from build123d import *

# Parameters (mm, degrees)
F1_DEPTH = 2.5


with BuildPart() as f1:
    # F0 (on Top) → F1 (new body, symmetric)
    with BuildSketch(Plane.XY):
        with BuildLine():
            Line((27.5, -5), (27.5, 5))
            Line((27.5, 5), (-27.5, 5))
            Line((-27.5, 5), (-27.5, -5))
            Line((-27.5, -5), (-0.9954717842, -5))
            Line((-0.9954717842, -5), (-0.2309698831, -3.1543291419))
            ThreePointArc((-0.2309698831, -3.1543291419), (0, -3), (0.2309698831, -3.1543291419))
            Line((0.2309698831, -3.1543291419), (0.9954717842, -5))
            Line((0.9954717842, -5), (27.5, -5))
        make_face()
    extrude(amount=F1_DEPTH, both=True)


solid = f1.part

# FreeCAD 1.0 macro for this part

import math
import FreeCAD as App
import Part
import Sketcher

V = App.Vector
Q = App.Units.Quantity

doc = App.newDocument("Part")
params = doc.addObject("Spreadsheet::Sheet", "Params")
for row, (alias, value) in enumerate([
    ("sketch1_width", "55 mm"),
    ("sketch1_height", "10 mm"),
    ("sketch1_radius", "0.25 mm"),
    ("pad1_length", "5 mm"),
], start=1):
    params.set(f"A{row}", alias)
    params.set(f"B{row}", "=" + value)
    params.setAlias(f"B{row}", alias)

body = doc.addObject("PartDesign::Body", "Body")

sketch1 = body.newObject("Sketcher::SketchObject", "Sketch")
sketch1.AttachmentSupport = (doc.getObject("XY_Plane"), [""])
sketch1.MapMode = "FlatFace"
sketch1.addGeometry([
    Part.LineSegment(V(27.5, -5, 0), V(27.5, 5, 0)),
    Part.LineSegment(V(27.5, 5, 0), V(-27.5, 5, 0)),
    Part.LineSegment(V(-27.5, 5, 0), V(-27.5, -5, 0)),
    Part.LineSegment(V(-27.5, -5, 0), V(-1, -5, 0)),
    Part.LineSegment(V(-1, -5, 0), V(-0.23, -3.15, 0)),
    Part.ArcOfCircle(Part.Circle(V(0, -3.25, 0), V(0, 0, 1), 0.25), math.radians(22), math.radians(158)),
    Part.LineSegment(V(0.23, -3.15, 0), V(1, -5, 0)),
    Part.LineSegment(V(1, -5, 0), V(27.5, -5, 0)),
], False)
sketch1.addConstraint([
    Sketcher.Constraint("Coincident", 0, 2, 1, 1),
    Sketcher.Constraint("Coincident", 1, 2, 2, 1),
    Sketcher.Constraint("Coincident", 2, 2, 3, 1),
    Sketcher.Constraint("Coincident", 3, 2, 4, 1),
    Sketcher.Constraint("Tangent", 4, 2, 5, 2),
    Sketcher.Constraint("Tangent", 5, 1, 6, 1),
    Sketcher.Constraint("Coincident", 6, 2, 7, 1),
    Sketcher.Constraint("Coincident", 7, 2, 0, 1),
    Sketcher.Constraint("Vertical", 0),
    Sketcher.Constraint("Horizontal", 1),
    Sketcher.Constraint("Vertical", 2),
    Sketcher.Constraint("Horizontal", 3),
    Sketcher.Constraint("Horizontal", 7),
    Sketcher.Constraint("Symmetric", 0, 2, 2, 2, -1, 1),
    Sketcher.Constraint("Symmetric", 4, 2, 5, 1, -2),
    Sketcher.Constraint("Horizontal", 3, 2, 6, 2),
    Sketcher.Constraint("DistanceX", 1, 2, 1, 1, 55.0),
    Sketcher.Constraint("DistanceY", 0, 1, 0, 2, 10.0),
    Sketcher.Constraint("Radius", 5, 0.25),
    Sketcher.Constraint("Angle", 4, Q("67.5 deg")),
    Sketcher.Constraint("DistanceY", 5, 3, -1, 1, 3.25),
])
sketch1.setExpression("Constraints[16]", "Params.sketch1_width")
sketch1.setExpression("Constraints[17]", "Params.sketch1_height")
sketch1.setExpression("Constraints[18]", "Params.sketch1_radius")
pad1 = body.newObject("PartDesign::Pad", "Pad")
pad1.Profile = sketch1
pad1.setExpression("Length", "Params.pad1_length")
pad1.Midplane = True

doc.recompute()
